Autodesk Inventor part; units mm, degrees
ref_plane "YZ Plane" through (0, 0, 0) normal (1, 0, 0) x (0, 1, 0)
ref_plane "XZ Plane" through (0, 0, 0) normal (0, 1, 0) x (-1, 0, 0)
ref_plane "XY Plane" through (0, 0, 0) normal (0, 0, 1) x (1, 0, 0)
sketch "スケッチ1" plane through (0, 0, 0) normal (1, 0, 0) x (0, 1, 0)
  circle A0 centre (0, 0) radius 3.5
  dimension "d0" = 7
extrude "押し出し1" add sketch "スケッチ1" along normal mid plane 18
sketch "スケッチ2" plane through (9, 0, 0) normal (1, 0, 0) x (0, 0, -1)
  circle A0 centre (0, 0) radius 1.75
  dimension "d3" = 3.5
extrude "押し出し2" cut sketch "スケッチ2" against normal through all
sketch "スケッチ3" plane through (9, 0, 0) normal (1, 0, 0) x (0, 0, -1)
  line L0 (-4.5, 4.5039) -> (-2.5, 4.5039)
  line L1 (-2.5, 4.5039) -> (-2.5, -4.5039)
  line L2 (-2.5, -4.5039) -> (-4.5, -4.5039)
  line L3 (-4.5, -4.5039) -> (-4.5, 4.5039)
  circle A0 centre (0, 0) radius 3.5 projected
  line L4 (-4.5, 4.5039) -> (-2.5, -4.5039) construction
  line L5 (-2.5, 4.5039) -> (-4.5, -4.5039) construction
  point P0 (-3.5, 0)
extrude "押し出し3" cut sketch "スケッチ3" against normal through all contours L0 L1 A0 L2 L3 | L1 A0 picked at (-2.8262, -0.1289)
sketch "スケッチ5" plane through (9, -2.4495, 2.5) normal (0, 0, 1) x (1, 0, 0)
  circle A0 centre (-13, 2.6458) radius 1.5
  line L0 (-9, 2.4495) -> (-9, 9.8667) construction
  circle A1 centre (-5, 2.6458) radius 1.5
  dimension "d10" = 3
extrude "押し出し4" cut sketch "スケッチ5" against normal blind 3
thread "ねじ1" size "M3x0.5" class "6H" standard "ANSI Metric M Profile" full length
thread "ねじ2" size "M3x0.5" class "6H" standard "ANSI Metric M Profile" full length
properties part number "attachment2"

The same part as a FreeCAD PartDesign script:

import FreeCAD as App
import Part
import Sketcher

doc = App.newDocument("Part")
body = doc.addObject("PartDesign::Body", "Body")

# Sketch on YZ plane
sketch1 = body.newObject("Sketcher::SketchObject", "Sketch")
sketch1.AttachmentSupport = (doc.getObject("YZ_Plane"), [""])
sketch1.MapMode = "FlatFace"
sketch1.addGeometry(Part.Circle(App.Vector(0, 0, 0), App.Vector(0, 0, 1), 3.5), False)
sketch1.addConstraint([
    Sketcher.Constraint("Coincident", 0, 3, -1, 1),
    Sketcher.Constraint("Diameter", 0, 7.0),
])
pad1 = body.newObject("PartDesign::Pad", "Pad")
pad1.Profile = sketch1
pad1.Length = 18
pad1.Midplane = True

# Sketch on YZ plane
sketch2 = body.newObject("Sketcher::SketchObject", "Sketch001")
sketch2.AttachmentSupport = (doc.getObject("YZ_Plane"), [""])
sketch2.MapMode = "FlatFace"
sketch2.AttachmentOffset = App.Placement(App.Vector(0, 0, 9), App.Rotation())
sketch2.addGeometry(Part.Circle(App.Vector(0, 0, 0), App.Vector(0, 0, 1), 1.75), False)
sketch2.addConstraint([
    Sketcher.Constraint("Coincident", 0, 3, -1, 1),
    Sketcher.Constraint("Diameter", 0, 3.5),
])
pocket1 = body.newObject("PartDesign::Pocket", "Pocket")
pocket1.Profile = sketch2
pocket1.Type = "ThroughAll"

# Sketch on YZ plane
sketch3 = body.newObject("Sketcher::SketchObject", "Sketch002")
sketch3.AttachmentSupport = (doc.getObject("YZ_Plane"), [""])
sketch3.MapMode = "FlatFace"
sketch3.AttachmentOffset = App.Placement(App.Vector(0, 0, 9), App.Rotation())
sketch3.addGeometry([
    Part.LineSegment(App.Vector(4.5039, 2.5, 0), App.Vector(4.5039, 4.5, 0)),
    Part.LineSegment(App.Vector(4.5039, 4.5, 0), App.Vector(-4.5039, 4.5, 0)),
    Part.LineSegment(App.Vector(-4.5039, 4.5, 0), App.Vector(-4.5039, 2.5, 0)),
    Part.LineSegment(App.Vector(-4.5039, 2.5, 0), App.Vector(4.5039, 2.5, 0)),
], False)
sketch3.addConstraint([
    Sketcher.Constraint("Coincident", 0, 2, 1, 1),
    Sketcher.Constraint("Coincident", 1, 2, 2, 1),
    Sketcher.Constraint("Coincident", 2, 2, 3, 1),
    Sketcher.Constraint("Coincident", 3, 2, 0, 1),
    Sketcher.Constraint("Vertical", 0),
    Sketcher.Constraint("Horizontal", 1),
    Sketcher.Constraint("Vertical", 2),
    Sketcher.Constraint("Horizontal", 3),
    Sketcher.Constraint("DistanceY", 0, 1, 0, 2, 2.0),
    Sketcher.Constraint("DistanceY", -1, 1, 0, 2, 4.5),
    Sketcher.Constraint("DistanceX", 1, 2, 1, 1, 9.0078),
    Sketcher.Constraint("DistanceX", -1, 1, 0, 2, 4.504),
])
pocket2 = body.newObject("PartDesign::Pocket", "Pocket001")
pocket2.Profile = sketch3
pocket2.Type = "ThroughAll"

# Sketch on XY plane
sketch4 = body.newObject("Sketcher::SketchObject", "Sketch003")
sketch4.AttachmentSupport = (doc.getObject("XY_Plane"), [""])
sketch4.MapMode = "FlatFace"
sketch4.AttachmentOffset = App.Placement(App.Vector(0, 0, 2.5), App.Rotation())
sketch4.addGeometry([
    Part.Circle(App.Vector(-4, 0.1963, 0), App.Vector(0, 0, 1), 1.5),
    Part.Circle(App.Vector(4, 0.1963, 0), App.Vector(0, 0, 1), 1.5),
], False)
sketch4.addConstraint([
    Sketcher.Constraint("Equal", 0, 1),
    Sketcher.Constraint("Symmetric", 0, 3, 1, 3, -2),
    Sketcher.Constraint("Diameter", 0, 3.0),
    Sketcher.Constraint("DistanceX", 0, 3, -1, 1, 4.0),
    Sketcher.Constraint("DistanceY", -1, 1, 0, 3, 0.1963),
])
pocket3 = body.newObject("PartDesign::Pocket", "Pocket002")
pocket3.Profile = sketch4
pocket3.Length = 3

doc.recompute()
